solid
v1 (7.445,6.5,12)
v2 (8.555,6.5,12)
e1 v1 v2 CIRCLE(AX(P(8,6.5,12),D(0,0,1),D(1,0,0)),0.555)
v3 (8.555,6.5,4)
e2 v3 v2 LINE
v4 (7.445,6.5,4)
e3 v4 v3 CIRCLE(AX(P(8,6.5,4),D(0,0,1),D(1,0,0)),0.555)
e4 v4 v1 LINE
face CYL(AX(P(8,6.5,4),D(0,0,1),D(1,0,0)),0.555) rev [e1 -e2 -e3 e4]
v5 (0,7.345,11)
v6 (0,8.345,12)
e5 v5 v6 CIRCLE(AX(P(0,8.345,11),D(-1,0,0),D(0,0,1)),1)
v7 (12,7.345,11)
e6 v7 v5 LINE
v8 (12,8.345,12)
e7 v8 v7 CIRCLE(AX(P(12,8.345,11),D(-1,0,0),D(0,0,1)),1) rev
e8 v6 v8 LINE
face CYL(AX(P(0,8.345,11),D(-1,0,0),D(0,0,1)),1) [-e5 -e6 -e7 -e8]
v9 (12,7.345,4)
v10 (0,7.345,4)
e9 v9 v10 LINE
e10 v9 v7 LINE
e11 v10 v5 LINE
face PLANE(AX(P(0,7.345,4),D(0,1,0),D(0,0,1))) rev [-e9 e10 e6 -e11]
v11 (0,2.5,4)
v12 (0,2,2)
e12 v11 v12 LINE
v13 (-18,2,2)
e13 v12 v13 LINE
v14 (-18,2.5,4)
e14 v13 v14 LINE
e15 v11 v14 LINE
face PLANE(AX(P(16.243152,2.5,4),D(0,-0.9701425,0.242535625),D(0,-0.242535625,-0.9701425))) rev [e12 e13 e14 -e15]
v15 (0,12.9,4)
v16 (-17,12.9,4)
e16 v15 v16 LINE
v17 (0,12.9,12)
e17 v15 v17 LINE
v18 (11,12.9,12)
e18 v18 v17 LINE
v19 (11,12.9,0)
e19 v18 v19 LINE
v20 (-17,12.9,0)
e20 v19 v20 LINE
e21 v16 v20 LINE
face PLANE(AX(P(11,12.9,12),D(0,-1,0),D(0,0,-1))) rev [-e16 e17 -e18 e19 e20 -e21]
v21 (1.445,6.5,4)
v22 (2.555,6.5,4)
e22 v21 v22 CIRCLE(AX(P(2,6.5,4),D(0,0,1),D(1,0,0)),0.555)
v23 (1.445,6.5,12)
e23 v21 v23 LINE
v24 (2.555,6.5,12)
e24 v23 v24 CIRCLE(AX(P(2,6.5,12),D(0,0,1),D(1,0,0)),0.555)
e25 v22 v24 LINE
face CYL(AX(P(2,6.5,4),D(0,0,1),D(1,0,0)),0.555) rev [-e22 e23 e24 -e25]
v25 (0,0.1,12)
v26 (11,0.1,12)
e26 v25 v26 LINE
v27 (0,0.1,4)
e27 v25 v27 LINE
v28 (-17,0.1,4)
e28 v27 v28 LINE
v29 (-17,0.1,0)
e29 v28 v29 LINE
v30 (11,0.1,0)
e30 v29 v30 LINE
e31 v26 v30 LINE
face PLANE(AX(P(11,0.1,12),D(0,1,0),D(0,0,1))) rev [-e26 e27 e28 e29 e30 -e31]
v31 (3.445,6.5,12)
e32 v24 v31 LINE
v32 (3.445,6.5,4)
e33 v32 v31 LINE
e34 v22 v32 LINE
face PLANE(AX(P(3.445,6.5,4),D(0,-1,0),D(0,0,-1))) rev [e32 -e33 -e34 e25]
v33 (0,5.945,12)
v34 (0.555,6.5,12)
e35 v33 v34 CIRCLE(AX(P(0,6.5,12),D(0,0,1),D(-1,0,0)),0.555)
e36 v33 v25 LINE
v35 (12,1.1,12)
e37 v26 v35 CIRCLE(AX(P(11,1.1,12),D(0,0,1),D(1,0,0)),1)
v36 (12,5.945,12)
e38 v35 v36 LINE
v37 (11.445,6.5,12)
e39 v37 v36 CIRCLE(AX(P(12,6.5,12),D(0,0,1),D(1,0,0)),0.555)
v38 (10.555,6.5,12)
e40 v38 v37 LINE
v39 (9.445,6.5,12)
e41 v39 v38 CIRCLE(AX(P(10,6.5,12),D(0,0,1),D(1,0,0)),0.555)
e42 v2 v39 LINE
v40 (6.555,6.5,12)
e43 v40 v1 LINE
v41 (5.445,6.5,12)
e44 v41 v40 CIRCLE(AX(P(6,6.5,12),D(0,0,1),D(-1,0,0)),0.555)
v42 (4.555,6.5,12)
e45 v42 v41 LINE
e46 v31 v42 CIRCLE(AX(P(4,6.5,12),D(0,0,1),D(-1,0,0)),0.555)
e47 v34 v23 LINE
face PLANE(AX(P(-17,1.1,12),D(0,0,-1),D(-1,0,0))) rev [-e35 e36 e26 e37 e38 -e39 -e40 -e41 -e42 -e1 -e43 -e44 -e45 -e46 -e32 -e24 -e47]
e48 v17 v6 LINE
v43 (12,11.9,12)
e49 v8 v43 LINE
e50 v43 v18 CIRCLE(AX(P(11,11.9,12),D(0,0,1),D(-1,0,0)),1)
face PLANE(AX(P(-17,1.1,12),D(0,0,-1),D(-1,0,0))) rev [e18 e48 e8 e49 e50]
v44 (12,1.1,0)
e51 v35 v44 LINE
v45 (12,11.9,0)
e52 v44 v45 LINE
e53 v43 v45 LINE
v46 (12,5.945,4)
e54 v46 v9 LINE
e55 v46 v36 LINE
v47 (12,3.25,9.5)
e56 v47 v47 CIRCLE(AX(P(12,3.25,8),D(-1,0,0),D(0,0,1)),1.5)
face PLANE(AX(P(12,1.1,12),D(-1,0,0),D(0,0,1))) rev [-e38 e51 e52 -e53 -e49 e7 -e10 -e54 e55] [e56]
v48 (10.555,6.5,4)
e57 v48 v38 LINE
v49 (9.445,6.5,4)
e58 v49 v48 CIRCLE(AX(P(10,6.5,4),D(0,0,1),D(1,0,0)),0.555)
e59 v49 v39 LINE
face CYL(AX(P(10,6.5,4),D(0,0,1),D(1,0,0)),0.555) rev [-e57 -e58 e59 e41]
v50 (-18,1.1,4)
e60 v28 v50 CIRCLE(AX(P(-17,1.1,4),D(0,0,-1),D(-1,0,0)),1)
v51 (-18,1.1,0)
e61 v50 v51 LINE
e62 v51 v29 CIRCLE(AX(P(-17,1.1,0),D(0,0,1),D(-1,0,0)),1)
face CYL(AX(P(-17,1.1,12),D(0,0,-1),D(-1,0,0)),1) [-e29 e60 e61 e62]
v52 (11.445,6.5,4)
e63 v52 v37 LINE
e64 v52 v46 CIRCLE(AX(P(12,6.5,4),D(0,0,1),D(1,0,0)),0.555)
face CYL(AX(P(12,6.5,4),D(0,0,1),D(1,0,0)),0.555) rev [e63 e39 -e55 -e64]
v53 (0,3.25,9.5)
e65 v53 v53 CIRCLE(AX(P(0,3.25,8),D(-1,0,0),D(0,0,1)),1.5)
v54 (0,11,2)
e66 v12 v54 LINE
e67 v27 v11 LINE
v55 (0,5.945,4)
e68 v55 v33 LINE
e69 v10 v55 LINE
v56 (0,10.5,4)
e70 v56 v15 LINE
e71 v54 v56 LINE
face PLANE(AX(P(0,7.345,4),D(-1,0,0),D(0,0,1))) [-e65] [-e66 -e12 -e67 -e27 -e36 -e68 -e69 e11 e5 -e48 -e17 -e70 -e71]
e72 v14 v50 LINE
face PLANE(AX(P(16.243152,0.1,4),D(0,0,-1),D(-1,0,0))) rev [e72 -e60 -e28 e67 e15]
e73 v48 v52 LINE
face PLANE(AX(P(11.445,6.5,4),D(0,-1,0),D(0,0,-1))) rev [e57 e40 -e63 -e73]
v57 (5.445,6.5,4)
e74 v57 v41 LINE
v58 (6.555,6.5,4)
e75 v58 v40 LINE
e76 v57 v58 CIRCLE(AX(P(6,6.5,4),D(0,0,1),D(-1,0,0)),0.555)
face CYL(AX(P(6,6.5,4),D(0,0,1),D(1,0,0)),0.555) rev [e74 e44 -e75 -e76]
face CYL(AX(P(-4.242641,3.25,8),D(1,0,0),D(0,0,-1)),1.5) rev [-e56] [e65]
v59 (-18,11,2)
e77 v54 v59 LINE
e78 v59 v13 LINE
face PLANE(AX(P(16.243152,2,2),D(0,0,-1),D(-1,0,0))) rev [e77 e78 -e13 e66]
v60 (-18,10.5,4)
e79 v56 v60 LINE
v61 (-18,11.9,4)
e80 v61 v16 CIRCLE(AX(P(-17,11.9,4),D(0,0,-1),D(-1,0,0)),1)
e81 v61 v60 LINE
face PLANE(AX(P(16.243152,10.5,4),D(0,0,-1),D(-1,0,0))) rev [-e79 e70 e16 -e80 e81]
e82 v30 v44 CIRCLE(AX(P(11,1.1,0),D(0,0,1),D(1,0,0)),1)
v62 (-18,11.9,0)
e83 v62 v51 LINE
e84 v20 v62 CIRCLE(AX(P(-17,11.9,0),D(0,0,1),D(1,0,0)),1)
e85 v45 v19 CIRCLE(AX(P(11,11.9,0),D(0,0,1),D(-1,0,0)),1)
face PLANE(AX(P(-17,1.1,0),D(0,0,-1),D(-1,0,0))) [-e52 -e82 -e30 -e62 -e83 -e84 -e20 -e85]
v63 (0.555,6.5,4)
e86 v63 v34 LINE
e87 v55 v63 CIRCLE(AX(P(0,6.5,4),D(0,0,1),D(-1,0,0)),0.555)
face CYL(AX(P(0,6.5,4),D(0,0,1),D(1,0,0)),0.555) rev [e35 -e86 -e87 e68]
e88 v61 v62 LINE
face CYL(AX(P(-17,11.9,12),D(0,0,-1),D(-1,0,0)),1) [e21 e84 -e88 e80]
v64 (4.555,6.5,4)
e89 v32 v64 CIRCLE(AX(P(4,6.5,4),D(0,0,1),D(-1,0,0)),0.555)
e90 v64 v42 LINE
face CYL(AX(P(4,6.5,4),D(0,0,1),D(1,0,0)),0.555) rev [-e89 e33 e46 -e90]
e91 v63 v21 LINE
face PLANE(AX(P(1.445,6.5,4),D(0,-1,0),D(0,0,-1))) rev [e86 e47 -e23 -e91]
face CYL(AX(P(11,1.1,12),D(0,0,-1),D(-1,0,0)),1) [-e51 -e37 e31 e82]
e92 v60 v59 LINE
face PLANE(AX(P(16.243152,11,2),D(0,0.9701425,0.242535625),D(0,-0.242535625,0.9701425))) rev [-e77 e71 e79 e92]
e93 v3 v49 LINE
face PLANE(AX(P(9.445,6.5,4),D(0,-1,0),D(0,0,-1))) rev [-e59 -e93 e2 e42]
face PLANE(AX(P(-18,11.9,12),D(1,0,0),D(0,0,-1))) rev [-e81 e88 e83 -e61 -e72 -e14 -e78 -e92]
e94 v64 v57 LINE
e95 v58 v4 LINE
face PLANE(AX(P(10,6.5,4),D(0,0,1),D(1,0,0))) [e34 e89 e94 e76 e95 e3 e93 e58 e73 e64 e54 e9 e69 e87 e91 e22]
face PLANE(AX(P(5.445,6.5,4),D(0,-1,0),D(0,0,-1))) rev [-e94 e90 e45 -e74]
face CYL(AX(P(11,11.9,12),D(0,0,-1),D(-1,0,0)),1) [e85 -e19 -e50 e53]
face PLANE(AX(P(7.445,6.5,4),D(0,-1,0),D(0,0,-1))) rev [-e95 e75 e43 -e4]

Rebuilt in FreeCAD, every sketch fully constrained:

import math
import FreeCAD as App
import Part
import Sketcher

V = App.Vector
Q = App.Units.Quantity


def edges_at(feature, points):
    """Names of the edges that pass closest to the given points."""
    edges = feature.Shape.Edges
    near = lambda p: min(range(len(edges)), key=lambda i: edges[i].distToShape(Part.Vertex(*p))[0])
    return sorted({f"Edge{near(p) + 1}" for p in points})


def add_polygon(sketch, points):
    """Adds a closed chain of lines whose ends are joined by coincident constraints."""
    first, n = sketch.GeometryCount, len(points)
    for a, b in zip(points, points[1:] + points[:1]):
        sketch.addGeometry(Part.LineSegment(App.Vector(*a, 0), App.Vector(*b, 0)), False)
    for i in range(n):
        sketch.addConstraint(Sketcher.Constraint("Coincident", first + i, 2, first + (i + 1) % n, 1))

doc = App.newDocument("Part")
body = doc.addObject("PartDesign::Body", "Body")

# Sketch on XY plane
sketch1 = doc.addObject("Sketcher::SketchObject", "Sketch")
body.addObject(sketch1)
sketch1.AttachmentSupport = (doc.XY_Plane, [""])
sketch1.MapMode = "FlatFace"
sketch1.addGeometry([
    Part.LineSegment(V(12, 1.1, 0), V(12, 11.9, 0)),  # 0
    Part.ArcOfCircle(Part.Circle(V(11, 11.9, 0), V(0, 0, 1), 1), math.radians(0), math.radians(90)),  # 1
    Part.LineSegment(V(11, 12.9, 0), V(-17, 12.9, 0)),  # 2
    Part.ArcOfCircle(Part.Circle(V(-17, 11.9, 0), V(0, 0, 1), 1), math.radians(90), math.radians(180)),  # 3
    Part.LineSegment(V(-18, 11.9, 0), V(-18, 1.1, 0)),  # 4
    Part.ArcOfCircle(Part.Circle(V(-17, 1.1, 0), V(0, 0, 1), 1), math.radians(-180), math.radians(-90)),  # 5
    Part.LineSegment(V(-17, 0.1, 0), V(11, 0.1, 0)),  # 6
    Part.ArcOfCircle(Part.Circle(V(11, 1.1, 0), V(0, 0, 1), 1), math.radians(-90), math.radians(0)),  # 7
], False)
sketch1.addConstraint([
    Sketcher.Constraint("Tangent", 0, 2, 1, 1),
    Sketcher.Constraint("Tangent", 1, 2, 2, 1),
    Sketcher.Constraint("Tangent", 2, 2, 3, 1),
    Sketcher.Constraint("Tangent", 3, 2, 4, 1),
    Sketcher.Constraint("Tangent", 4, 2, 5, 1),
    Sketcher.Constraint("Tangent", 5, 2, 6, 1),
    Sketcher.Constraint("Tangent", 6, 2, 7, 1),
    Sketcher.Constraint("Tangent", 7, 2, 0, 1),
    Sketcher.Constraint("Vertical", 0),
    Sketcher.Constraint("Horizontal", 2),
    Sketcher.Constraint("Vertical", 4),
    Sketcher.Constraint("Horizontal", 6),
    Sketcher.Constraint("Equal", 1, 3),
    Sketcher.Constraint("Equal", 3, 5),
    Sketcher.Constraint("Equal", 5, 7),
    Sketcher.Constraint("Radius", 1, Q("1 mm")),
    Sketcher.Constraint("DistanceX", 2, 2, 2, 1, Q("28 mm")),
    Sketcher.Constraint("DistanceY", 0, 1, 0, 2, Q("10.8 mm")),
    Sketcher.Constraint("DistanceX", -1, 1, 1, 3, Q("11 mm")),
    Sketcher.Constraint("DistanceY", -1, 1, 1, 3, Q("11.9 mm")),
])
pad1 = doc.addObject("PartDesign::Pad", "Pad")
body.addObject(pad1)
pad1.Profile = sketch1
pad1.Length = 12

# Sketch on XY plane
sketch2 = doc.addObject("Sketcher::SketchObject", "Sketch001")
body.addObject(sketch2)
sketch2.AttachmentSupport = (doc.XY_Plane, [""])
sketch2.MapMode = "FlatFace"
sketch2.AttachmentOffset = App.Placement(V(0, 0, 12), App.Rotation())
sketch2.addGeometry([
    Part.LineSegment(V(10.555, 6.5, 0), V(11.445, 6.5, 0)),  # 0
    Part.ArcOfCircle(Part.Circle(V(12, 6.5, 0), V(0, 0, 1), 0.555), math.radians(180), math.radians(270)),  # 1
    Part.LineSegment(V(12, 5.945, 0), V(12, 7.345, 0)),  # 2
    Part.LineSegment(V(12, 7.345, 0), V(0, 7.345, 0)),  # 3
    Part.LineSegment(V(0, 7.345, 0), V(0, 5.945, 0)),  # 4
    Part.ArcOfCircle(Part.Circle(V(0, 6.5, 0), V(0, 0, 1), 0.555), math.radians(-90), math.radians(0)),  # 5
    Part.LineSegment(V(0.555, 6.5, 0), V(1.445, 6.5, 0)),  # 6
    Part.ArcOfCircle(Part.Circle(V(2, 6.5, 0), V(0, 0, 1), 0.555), math.radians(180), math.radians(360)),  # 7
    Part.LineSegment(V(2.555, 6.5, 0), V(3.445, 6.5, 0)),  # 8
    Part.ArcOfCircle(Part.Circle(V(4, 6.5, 0), V(0, 0, 1), 0.555), math.radians(180), math.radians(360)),  # 9
    Part.LineSegment(V(4.555, 6.5, 0), V(5.445, 6.5, 0)),  # 10
    Part.ArcOfCircle(Part.Circle(V(6, 6.5, 0), V(0, 0, 1), 0.555), math.radians(180), math.radians(360)),  # 11
    Part.LineSegment(V(6.555, 6.5, 0), V(7.445, 6.5, 0)),  # 12
    Part.ArcOfCircle(Part.Circle(V(8, 6.5, 0), V(0, 0, 1), 0.555), math.radians(180), math.radians(360)),  # 13
    Part.LineSegment(V(8.555, 6.5, 0), V(9.445, 6.5, 0)),  # 14
    Part.ArcOfCircle(Part.Circle(V(10, 6.5, 0), V(0, 0, 1), 0.555), math.radians(180), math.radians(360)),  # 15
], False)
sketch2.addConstraint([
    Sketcher.Constraint("Coincident", 0, 2, 1, 1),
    Sketcher.Constraint("Coincident", 1, 2, 2, 1),
    Sketcher.Constraint("Coincident", 2, 2, 3, 1),
    Sketcher.Constraint("Coincident", 3, 2, 4, 1),
    Sketcher.Constraint("Coincident", 4, 2, 5, 1),
    Sketcher.Constraint("Coincident", 5, 2, 6, 1),
    Sketcher.Constraint("Coincident", 6, 2, 7, 1),
    Sketcher.Constraint("Coincident", 7, 2, 8, 1),
    Sketcher.Constraint("Coincident", 8, 2, 9, 1),
    Sketcher.Constraint("Coincident", 9, 2, 10, 1),
    Sketcher.Constraint("Coincident", 10, 2, 11, 1),
    Sketcher.Constraint("Coincident", 11, 2, 12, 1),
    Sketcher.Constraint("Coincident", 12, 2, 13, 1),
    Sketcher.Constraint("Coincident", 13, 2, 14, 1),
    Sketcher.Constraint("Coincident", 14, 2, 15, 1),
    Sketcher.Constraint("Coincident", 15, 2, 0, 1),
    Sketcher.Constraint("Horizontal", 0),
    Sketcher.Constraint("Vertical", 2),
    Sketcher.Constraint("Horizontal", 3),
    Sketcher.Constraint("Vertical", 4),
    Sketcher.Constraint("Horizontal", 6),
    Sketcher.Constraint("Horizontal", 8),
    Sketcher.Constraint("Horizontal", 10),
    Sketcher.Constraint("Horizontal", 12),
    Sketcher.Constraint("Horizontal", 14),
    Sketcher.Constraint("Equal", 1, 5),
    Sketcher.Constraint("Equal", 5, 7),
    Sketcher.Constraint("Equal", 7, 9),
    Sketcher.Constraint("Equal", 9, 11),
    Sketcher.Constraint("Equal", 11, 13),
    Sketcher.Constraint("Equal", 13, 15),
    Sketcher.Constraint("PointOnObject", 5, 3, -2),
    Sketcher.Constraint("PointOnObject", 3, 2, -2),
    Sketcher.Constraint("Horizontal", 1, 3, 5, 3),
    Sketcher.Constraint("Horizontal", 5, 3, 7, 3),
    Sketcher.Constraint("Horizontal", 7, 3, 9, 3),
    Sketcher.Constraint("Horizontal", 9, 3, 11, 3),
    Sketcher.Constraint("Horizontal", 11, 3, 13, 3),
    Sketcher.Constraint("Horizontal", 13, 3, 15, 3),
    Sketcher.Constraint("Horizontal", 15, 3, 0, 2),
    Sketcher.Constraint("Horizontal", 0, 2, 5, 2),
    Sketcher.Constraint("Horizontal", 6, 2, 7, 2),
    Sketcher.Constraint("Horizontal", 8, 2, 9, 2),
    Sketcher.Constraint("Horizontal", 10, 2, 11, 2),
    Sketcher.Constraint("Horizontal", 12, 2, 13, 2),
    Sketcher.Constraint("Equal", 0, 6),
    Sketcher.Constraint("Equal", 6, 8),
    Sketcher.Constraint("Equal", 8, 10),
    Sketcher.Constraint("Equal", 10, 12),
    Sketcher.Constraint("Equal", 12, 14),
    Sketcher.Constraint("DistanceX", 3, 2, 3, 1, Q("12 mm")),
    Sketcher.Constraint("DistanceY", 2, 1, 2, 2, Q("1.4 mm")),
    Sketcher.Constraint("DistanceX", -1, 1, 1, 3, Q("12 mm")),
    Sketcher.Constraint("Radius", 1, Q("0.555 mm")),
    Sketcher.Constraint("DistanceY", -1, 1, 1, 3, Q("6.5 mm")),
])
pocket1 = doc.addObject("PartDesign::Pocket", "Pocket")
body.addObject(pocket1)
pocket1.Profile = sketch2
pocket1.Length = 8
doc.recompute()

fillet = doc.addObject("PartDesign::Fillet", "Fillet")
body.addObject(fillet)
fillet.Base = (pocket1, edges_at(pocket1, [(6, 7.345, 12)]))
fillet.Radius = 1

# Sketch on YZ plane
sketch3 = doc.addObject("Sketcher::SketchObject", "Sketch002")
body.addObject(sketch3)
sketch3.AttachmentSupport = (doc.YZ_Plane, [""])
sketch3.MapMode = "FlatFace"
sketch3.AttachmentOffset = App.Placement(V(0, 0, -18), App.Rotation())
add_polygon(sketch3, [(12.9, 4), (10.5, 4), (11, 2), (2, 2), (2.5, 4), (0.1, 4), (0.1, 12), (12.9, 12)])  # lines 0-7
sketch3.addConstraint([
    Sketcher.Constraint("Horizontal", 0),
    Sketcher.Constraint("Horizontal", 2),
    Sketcher.Constraint("Horizontal", 4),
    Sketcher.Constraint("Vertical", 5),
    Sketcher.Constraint("Horizontal", 6),
    Sketcher.Constraint("Vertical", 7),
    Sketcher.Constraint("Horizontal", 0, 2, 3, 2),
    Sketcher.Constraint("Equal", 0, 4),
    Sketcher.Constraint("Equal", 1, 3),
    Sketcher.Constraint("DistanceX", 2, 2, 2, 1, Q("9 mm")),
    Sketcher.Constraint("DistanceY", 5, 1, 5, 2, Q("8 mm")),
    Sketcher.Constraint("DistanceX", 0, 2, 0, 1, Q("2.4 mm")),
    Sketcher.Constraint("DistanceX", 6, 1, 6, 2, Q("12.8 mm")),
    Sketcher.Constraint("DistanceY", -1, 1, 0, 2, Q("4 mm")),
    Sketcher.Constraint("DistanceX", -1, 1, 1, 2, Q("11 mm")),
    Sketcher.Constraint("DistanceY", -1, 1, 1, 2, Q("2 mm")),
])
pocket2 = doc.addObject("PartDesign::Pocket", "Pocket001")
body.addObject(pocket2)
pocket2.Profile = sketch3
pocket2.Length = 18
pocket2.Reversed = True

# Sketch on YZ plane
sketch4 = doc.addObject("Sketcher::SketchObject", "Sketch003")
body.addObject(sketch4)
sketch4.AttachmentSupport = (doc.YZ_Plane, [""])
sketch4.MapMode = "FlatFace"
sketch4.AttachmentOffset = App.Placement(V(0, 0, 12), App.Rotation())
sketch4.addGeometry(Part.Circle(V(3.25, 8, 0), V(0, 0, 1), 1.5), False)
sketch4.addConstraint([
    Sketcher.Constraint("Diameter", 0, Q("3 mm")),
    Sketcher.Constraint("DistanceY", -1, 1, 0, 3, Q("8 mm")),
    Sketcher.Constraint("DistanceX", -1, 1, 0, 3, Q("3.25 mm")),
])
pocket3 = doc.addObject("PartDesign::Pocket", "Pocket002")
body.addObject(pocket3)
pocket3.Profile = sketch4
pocket3.Length = 12

doc.recompute()
